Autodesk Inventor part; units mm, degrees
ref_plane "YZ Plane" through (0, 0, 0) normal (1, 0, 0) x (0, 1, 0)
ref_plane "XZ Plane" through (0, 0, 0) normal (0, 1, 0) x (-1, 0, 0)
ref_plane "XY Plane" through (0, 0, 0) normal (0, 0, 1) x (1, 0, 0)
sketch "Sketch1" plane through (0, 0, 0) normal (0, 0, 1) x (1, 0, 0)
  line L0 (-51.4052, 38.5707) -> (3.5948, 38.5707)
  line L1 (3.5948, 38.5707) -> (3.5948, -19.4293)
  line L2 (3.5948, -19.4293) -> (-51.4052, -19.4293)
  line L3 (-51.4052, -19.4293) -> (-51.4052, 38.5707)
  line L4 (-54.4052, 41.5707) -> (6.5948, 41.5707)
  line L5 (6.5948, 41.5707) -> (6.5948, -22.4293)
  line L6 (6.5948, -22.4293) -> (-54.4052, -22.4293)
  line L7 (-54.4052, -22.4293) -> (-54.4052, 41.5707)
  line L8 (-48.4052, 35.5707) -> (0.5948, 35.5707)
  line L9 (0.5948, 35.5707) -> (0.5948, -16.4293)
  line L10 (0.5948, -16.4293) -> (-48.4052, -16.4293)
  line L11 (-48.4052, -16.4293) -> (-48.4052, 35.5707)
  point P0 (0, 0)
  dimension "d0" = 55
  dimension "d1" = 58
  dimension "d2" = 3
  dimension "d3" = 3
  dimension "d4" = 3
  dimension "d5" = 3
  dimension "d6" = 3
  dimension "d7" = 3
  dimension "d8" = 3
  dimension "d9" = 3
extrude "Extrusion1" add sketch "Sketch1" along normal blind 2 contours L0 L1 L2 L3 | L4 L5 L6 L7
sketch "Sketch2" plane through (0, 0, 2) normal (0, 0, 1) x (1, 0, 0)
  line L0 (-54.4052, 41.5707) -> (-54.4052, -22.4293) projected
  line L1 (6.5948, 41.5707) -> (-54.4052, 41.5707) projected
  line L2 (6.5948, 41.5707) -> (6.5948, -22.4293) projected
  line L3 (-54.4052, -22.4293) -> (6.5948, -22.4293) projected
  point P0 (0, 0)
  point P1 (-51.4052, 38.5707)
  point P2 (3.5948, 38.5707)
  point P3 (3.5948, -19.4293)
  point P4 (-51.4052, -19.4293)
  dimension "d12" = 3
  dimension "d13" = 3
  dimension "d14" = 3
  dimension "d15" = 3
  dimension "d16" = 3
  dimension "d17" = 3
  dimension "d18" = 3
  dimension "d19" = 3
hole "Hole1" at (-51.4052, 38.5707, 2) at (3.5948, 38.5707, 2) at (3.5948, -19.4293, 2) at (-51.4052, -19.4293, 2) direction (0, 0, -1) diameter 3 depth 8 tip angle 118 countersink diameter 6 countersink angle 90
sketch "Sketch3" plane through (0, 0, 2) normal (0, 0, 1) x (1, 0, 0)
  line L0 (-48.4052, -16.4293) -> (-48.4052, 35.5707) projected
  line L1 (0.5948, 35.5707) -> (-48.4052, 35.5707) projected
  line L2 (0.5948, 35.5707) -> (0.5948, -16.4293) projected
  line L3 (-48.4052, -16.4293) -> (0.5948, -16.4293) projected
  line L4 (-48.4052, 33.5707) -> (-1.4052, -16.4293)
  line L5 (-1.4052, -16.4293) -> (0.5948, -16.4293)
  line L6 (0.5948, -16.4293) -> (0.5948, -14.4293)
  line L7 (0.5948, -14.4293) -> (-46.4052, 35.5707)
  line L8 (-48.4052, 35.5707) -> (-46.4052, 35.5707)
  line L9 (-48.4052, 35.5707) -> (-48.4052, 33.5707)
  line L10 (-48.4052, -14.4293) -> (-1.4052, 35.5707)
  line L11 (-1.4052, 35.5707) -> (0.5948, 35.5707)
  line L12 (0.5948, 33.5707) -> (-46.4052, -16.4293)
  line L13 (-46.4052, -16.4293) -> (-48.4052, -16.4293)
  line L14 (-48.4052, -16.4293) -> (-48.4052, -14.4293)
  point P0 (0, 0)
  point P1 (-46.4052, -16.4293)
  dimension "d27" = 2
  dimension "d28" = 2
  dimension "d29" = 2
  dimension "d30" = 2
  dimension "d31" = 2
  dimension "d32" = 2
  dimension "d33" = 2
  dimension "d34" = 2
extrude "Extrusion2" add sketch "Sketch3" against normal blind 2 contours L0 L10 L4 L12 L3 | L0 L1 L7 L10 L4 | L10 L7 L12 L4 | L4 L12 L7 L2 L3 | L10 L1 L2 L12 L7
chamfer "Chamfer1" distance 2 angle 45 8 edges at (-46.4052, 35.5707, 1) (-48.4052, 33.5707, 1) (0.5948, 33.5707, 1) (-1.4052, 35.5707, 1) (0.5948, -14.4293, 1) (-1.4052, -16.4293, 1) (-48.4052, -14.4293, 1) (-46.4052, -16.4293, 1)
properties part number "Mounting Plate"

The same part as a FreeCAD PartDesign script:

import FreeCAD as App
import Part
import Sketcher
from FreeCAD import Vector


def edges_at(feature, points):
    """Names of the edges that pass closest to the given points."""
    edges = feature.Shape.Edges
    near = lambda p: min(range(len(edges)), key=lambda i: edges[i].distToShape(Part.Vertex(*p))[0])
    return sorted({f"Edge{near(p) + 1}" for p in points})


def add_polygon(sketch, points):
    """Adds a closed chain of lines whose ends are joined by coincident constraints."""
    first, n = sketch.GeometryCount, len(points)
    for a, b in zip(points, points[1:] + points[:1]):
        sketch.addGeometry(Part.LineSegment(App.Vector(*a, 0), App.Vector(*b, 0)), False)
    for i in range(n):
        sketch.addConstraint(Sketcher.Constraint("Coincident", first + i, 2, first + (i + 1) % n, 1))

doc = App.newDocument("Part")
body = doc.addObject("PartDesign::Body", "Body")

# Sketch on XY plane
sketch1 = doc.addObject("Sketcher::SketchObject", "Sketch")
body.addObject(sketch1)
sketch1.AttachmentSupport = (doc.XY_Plane, [""])
sketch1.MapMode = "FlatFace"
add_polygon(sketch1, [(7, 42), (-54, 42), (-54, -22), (7, -22)])  # lines 0-3
add_polygon(sketch1, [(-48, -16), (-48, 36), (1, 36), (1, -16)])  # lines 4-7
sketch1.addConstraint(Sketcher.Constraint("Horizontal", 0))
sketch1.addConstraint(Sketcher.Constraint("Vertical", 1))
sketch1.addConstraint(Sketcher.Constraint("Horizontal", 2))
sketch1.addConstraint(Sketcher.Constraint("Vertical", 3))
sketch1.addConstraint(Sketcher.Constraint("Vertical", 4))
sketch1.addConstraint(Sketcher.Constraint("Horizontal", 5))
sketch1.addConstraint(Sketcher.Constraint("Vertical", 6))
sketch1.addConstraint(Sketcher.Constraint("Horizontal", 7))
sketch1.addConstraint(Sketcher.Constraint("DistanceX", 4, 2, 3, 2, 55.0))
sketch1.addConstraint(Sketcher.Constraint("DistanceY", 1, 2, 4, 2, 58.0))
sketch1.addConstraint(Sketcher.Constraint("DistanceX", 0, 2, 5, 2, 55.0))
sketch1.addConstraint(Sketcher.Constraint("DistanceY", 6, 2, 3, 2, 58.0))
sketch1.addConstraint(Sketcher.Constraint("DistanceX", 0, 2, 0, 1, 61.0))
sketch1.addConstraint(Sketcher.Constraint("DistanceY", 1, 2, 1, 1, 64.0))
sketch1.addConstraint(Sketcher.Constraint("DistanceX", 0, 2, -1, 1, 54.4052))
sketch1.addConstraint(Sketcher.Constraint("DistanceY", -1, 1, 0, 2, 41.5707))
pad1 = doc.addObject("PartDesign::Pad", "Pad")
body.addObject(pad1)
pad1.Profile = sketch1
pad1.Length = 2

# Sketch on XY plane
sketch2 = doc.addObject("Sketcher::SketchObject", "Sketch001")
body.addObject(sketch2)
sketch2.AttachmentSupport = (doc.XY_Plane, [""])
sketch2.MapMode = "FlatFace"
sketch2.AttachmentOffset = App.Placement(Vector(0, 0, 2), App.Rotation())
sketch2.addGeometry(Part.Circle(Vector(-51.4, 38.6, 0), Vector(0, 0, 1), 1.5), False)
sketch2.addGeometry(Part.Circle(Vector(3.6, 38.6, 0), Vector(0, 0, 1), 1.5), False)
sketch2.addGeometry(Part.Circle(Vector(3.6, -19.4, 0), Vector(0, 0, 1), 1.5), False)
sketch2.addGeometry(Part.Circle(Vector(-51.4, -19.4, 0), Vector(0, 0, 1), 1.5), False)
sketch2.addConstraint(Sketcher.Constraint("Equal", 0, 1))
sketch2.addConstraint(Sketcher.Constraint("Equal", 1, 2))
sketch2.addConstraint(Sketcher.Constraint("Equal", 2, 3))
sketch2.addConstraint(Sketcher.Constraint("Horizontal", 0, 3, 1, 3))
sketch2.addConstraint(Sketcher.Constraint("Horizontal", 2, 3, 3, 3))
sketch2.addConstraint(Sketcher.Constraint("Vertical", 1, 3, 2, 3))
sketch2.addConstraint(Sketcher.Constraint("Vertical", 0, 3, 3, 3))
sketch2.addConstraint(Sketcher.Constraint("Diameter", 0, 3.0))
sketch2.addConstraint(Sketcher.Constraint("DistanceX", 0, 3, 1, 3, 55.0))
sketch2.addConstraint(Sketcher.Constraint("DistanceY", 2, 3, 1, 3, 58.0))
sketch2.addConstraint(Sketcher.Constraint("DistanceX", 0, 3, -1, 1, 51.4052))
sketch2.addConstraint(Sketcher.Constraint("DistanceY", -1, 1, 0, 3, 38.5707))
doc.recompute()
hole = doc.addObject("PartDesign::Hole", "Hole")
body.addObject(hole)
hole.Profile = sketch2
hole.ThreadType = "None"
hole.Diameter = 3
hole.DepthType = "Dimension"
hole.Depth = 8
hole.DrillPoint = "Angled"
hole.DrillPointAngle = 118
hole.HoleCutType = "Countersink"
hole.HoleCutDiameter = 6
hole.HoleCutCountersinkAngle = 90

# Sketch on XY plane
sketch3 = doc.addObject("Sketcher::SketchObject", "Sketch002")
body.addObject(sketch3)
sketch3.AttachmentSupport = (doc.XY_Plane, [""])
sketch3.MapMode = "FlatFace"
sketch3.AttachmentOffset = App.Placement(Vector(0, 0, 2), App.Rotation())
add_polygon(sketch3, [(-48.4, -14.4), (-48.4, -16.4), (-46.4, -16.4), (-23.9, 7.5), (-1.4, -16.4), (0.6, -16.4), (0.6, -14.4), (-22, 9.6), (0.6, 33.6), (0.6, 35.6), (-1.4, 35.6), (-23.9, 11.6), (-46.4, 35.6), (-48.4, 35.6), (-48.4, 33.6), (-25.8, 9.6)])  # lines 0-15
sketch3.addConstraint(Sketcher.Constraint("Vertical", 0))
sketch3.addConstraint(Sketcher.Constraint("Horizontal", 1))
sketch3.addConstraint(Sketcher.Constraint("Horizontal", 4))
sketch3.addConstraint(Sketcher.Constraint("Vertical", 5))
sketch3.addConstraint(Sketcher.Constraint("Vertical", 8))
sketch3.addConstraint(Sketcher.Constraint("Horizontal", 9))
sketch3.addConstraint(Sketcher.Constraint("Horizontal", 12))
sketch3.addConstraint(Sketcher.Constraint("Vertical", 13))
sketch3.addConstraint(Sketcher.Constraint("Parallel", 3, 6))
sketch3.addConstraint(Sketcher.Constraint("Parallel", 2, 7))
sketch3.addConstraint(Sketcher.Constraint("Parallel", 7, 10))
sketch3.addConstraint(Sketcher.Constraint("Parallel", 6, 11))
sketch3.addConstraint(Sketcher.Constraint("Parallel", 11, 14))
sketch3.addConstraint(Sketcher.Constraint("Parallel", 10, 15))
sketch3.addConstraint(Sketcher.Constraint("Horizontal", 1, 2, 3, 2))
sketch3.addConstraint(Sketcher.Constraint("Horizontal", 9, 2, 11, 2))
sketch3.addConstraint(Sketcher.Constraint("Horizontal", 7, 2, 13, 2))
sketch3.addConstraint(Sketcher.Constraint("Horizontal", 6, 2, 14, 2))
sketch3.addConstraint(Sketcher.Constraint("Horizontal", 5, 2, 15, 2))
sketch3.addConstraint(Sketcher.Constraint("Vertical", 5, 2, 7, 2))
sketch3.addConstraint(Sketcher.Constraint("Vertical", 3, 2, 9, 2))
sketch3.addConstraint(Sketcher.Constraint("Vertical", 2, 2, 10, 2))
sketch3.addConstraint(Sketcher.Constraint("Vertical", 1, 2, 11, 2))
sketch3.addConstraint(Sketcher.Constraint("Equal", 1, 4))
sketch3.addConstraint(Sketcher.Constraint("Equal", 12, 0))
sketch3.addConstraint(Sketcher.Constraint("Equal", 5, 8))
sketch3.addConstraint(Sketcher.Constraint("DistanceX", 1, 1, 1, 2, 2.0))
sketch3.addConstraint(Sketcher.Constraint("DistanceX", 1, 2, 3, 2, 45.0))
sketch3.addConstraint(Sketcher.Constraint("DistanceY", 5, 2, 6, 2, 24.0))
sketch3.addConstraint(Sketcher.Constraint("DistanceX", 2, 2, 6, 2, 1.94))
sketch3.addConstraint(Sketcher.Constraint("DistanceX", 0, 2, -1, 1, 48.4052))
sketch3.addConstraint(Sketcher.Constraint("DistanceY", 0, 2, -1, 1, 16.4293))
pad2 = doc.addObject("PartDesign::Pad", "Pad001")
body.addObject(pad2)
pad2.Profile = sketch3
pad2.Length = 2
pad2.Reversed = True
doc.recompute()

chamfer = doc.addObject("PartDesign::Chamfer", "Chamfer")
body.addObject(chamfer)
chamfer.Base = (pad2, edges_at(pad2, [
    (-46.405, 35.571, 1),
    (-48.405, 33.571, 1),
    (0.595, 33.571, 1),
    (-1.405, 35.571, 1),
    (0.595, -14.429, 1),
    (-1.405, -16.429, 1),
    (-48.405, -14.429, 1),
    (-46.405, -16.429, 1),
]))
chamfer.Size = 2

doc.recompute()
